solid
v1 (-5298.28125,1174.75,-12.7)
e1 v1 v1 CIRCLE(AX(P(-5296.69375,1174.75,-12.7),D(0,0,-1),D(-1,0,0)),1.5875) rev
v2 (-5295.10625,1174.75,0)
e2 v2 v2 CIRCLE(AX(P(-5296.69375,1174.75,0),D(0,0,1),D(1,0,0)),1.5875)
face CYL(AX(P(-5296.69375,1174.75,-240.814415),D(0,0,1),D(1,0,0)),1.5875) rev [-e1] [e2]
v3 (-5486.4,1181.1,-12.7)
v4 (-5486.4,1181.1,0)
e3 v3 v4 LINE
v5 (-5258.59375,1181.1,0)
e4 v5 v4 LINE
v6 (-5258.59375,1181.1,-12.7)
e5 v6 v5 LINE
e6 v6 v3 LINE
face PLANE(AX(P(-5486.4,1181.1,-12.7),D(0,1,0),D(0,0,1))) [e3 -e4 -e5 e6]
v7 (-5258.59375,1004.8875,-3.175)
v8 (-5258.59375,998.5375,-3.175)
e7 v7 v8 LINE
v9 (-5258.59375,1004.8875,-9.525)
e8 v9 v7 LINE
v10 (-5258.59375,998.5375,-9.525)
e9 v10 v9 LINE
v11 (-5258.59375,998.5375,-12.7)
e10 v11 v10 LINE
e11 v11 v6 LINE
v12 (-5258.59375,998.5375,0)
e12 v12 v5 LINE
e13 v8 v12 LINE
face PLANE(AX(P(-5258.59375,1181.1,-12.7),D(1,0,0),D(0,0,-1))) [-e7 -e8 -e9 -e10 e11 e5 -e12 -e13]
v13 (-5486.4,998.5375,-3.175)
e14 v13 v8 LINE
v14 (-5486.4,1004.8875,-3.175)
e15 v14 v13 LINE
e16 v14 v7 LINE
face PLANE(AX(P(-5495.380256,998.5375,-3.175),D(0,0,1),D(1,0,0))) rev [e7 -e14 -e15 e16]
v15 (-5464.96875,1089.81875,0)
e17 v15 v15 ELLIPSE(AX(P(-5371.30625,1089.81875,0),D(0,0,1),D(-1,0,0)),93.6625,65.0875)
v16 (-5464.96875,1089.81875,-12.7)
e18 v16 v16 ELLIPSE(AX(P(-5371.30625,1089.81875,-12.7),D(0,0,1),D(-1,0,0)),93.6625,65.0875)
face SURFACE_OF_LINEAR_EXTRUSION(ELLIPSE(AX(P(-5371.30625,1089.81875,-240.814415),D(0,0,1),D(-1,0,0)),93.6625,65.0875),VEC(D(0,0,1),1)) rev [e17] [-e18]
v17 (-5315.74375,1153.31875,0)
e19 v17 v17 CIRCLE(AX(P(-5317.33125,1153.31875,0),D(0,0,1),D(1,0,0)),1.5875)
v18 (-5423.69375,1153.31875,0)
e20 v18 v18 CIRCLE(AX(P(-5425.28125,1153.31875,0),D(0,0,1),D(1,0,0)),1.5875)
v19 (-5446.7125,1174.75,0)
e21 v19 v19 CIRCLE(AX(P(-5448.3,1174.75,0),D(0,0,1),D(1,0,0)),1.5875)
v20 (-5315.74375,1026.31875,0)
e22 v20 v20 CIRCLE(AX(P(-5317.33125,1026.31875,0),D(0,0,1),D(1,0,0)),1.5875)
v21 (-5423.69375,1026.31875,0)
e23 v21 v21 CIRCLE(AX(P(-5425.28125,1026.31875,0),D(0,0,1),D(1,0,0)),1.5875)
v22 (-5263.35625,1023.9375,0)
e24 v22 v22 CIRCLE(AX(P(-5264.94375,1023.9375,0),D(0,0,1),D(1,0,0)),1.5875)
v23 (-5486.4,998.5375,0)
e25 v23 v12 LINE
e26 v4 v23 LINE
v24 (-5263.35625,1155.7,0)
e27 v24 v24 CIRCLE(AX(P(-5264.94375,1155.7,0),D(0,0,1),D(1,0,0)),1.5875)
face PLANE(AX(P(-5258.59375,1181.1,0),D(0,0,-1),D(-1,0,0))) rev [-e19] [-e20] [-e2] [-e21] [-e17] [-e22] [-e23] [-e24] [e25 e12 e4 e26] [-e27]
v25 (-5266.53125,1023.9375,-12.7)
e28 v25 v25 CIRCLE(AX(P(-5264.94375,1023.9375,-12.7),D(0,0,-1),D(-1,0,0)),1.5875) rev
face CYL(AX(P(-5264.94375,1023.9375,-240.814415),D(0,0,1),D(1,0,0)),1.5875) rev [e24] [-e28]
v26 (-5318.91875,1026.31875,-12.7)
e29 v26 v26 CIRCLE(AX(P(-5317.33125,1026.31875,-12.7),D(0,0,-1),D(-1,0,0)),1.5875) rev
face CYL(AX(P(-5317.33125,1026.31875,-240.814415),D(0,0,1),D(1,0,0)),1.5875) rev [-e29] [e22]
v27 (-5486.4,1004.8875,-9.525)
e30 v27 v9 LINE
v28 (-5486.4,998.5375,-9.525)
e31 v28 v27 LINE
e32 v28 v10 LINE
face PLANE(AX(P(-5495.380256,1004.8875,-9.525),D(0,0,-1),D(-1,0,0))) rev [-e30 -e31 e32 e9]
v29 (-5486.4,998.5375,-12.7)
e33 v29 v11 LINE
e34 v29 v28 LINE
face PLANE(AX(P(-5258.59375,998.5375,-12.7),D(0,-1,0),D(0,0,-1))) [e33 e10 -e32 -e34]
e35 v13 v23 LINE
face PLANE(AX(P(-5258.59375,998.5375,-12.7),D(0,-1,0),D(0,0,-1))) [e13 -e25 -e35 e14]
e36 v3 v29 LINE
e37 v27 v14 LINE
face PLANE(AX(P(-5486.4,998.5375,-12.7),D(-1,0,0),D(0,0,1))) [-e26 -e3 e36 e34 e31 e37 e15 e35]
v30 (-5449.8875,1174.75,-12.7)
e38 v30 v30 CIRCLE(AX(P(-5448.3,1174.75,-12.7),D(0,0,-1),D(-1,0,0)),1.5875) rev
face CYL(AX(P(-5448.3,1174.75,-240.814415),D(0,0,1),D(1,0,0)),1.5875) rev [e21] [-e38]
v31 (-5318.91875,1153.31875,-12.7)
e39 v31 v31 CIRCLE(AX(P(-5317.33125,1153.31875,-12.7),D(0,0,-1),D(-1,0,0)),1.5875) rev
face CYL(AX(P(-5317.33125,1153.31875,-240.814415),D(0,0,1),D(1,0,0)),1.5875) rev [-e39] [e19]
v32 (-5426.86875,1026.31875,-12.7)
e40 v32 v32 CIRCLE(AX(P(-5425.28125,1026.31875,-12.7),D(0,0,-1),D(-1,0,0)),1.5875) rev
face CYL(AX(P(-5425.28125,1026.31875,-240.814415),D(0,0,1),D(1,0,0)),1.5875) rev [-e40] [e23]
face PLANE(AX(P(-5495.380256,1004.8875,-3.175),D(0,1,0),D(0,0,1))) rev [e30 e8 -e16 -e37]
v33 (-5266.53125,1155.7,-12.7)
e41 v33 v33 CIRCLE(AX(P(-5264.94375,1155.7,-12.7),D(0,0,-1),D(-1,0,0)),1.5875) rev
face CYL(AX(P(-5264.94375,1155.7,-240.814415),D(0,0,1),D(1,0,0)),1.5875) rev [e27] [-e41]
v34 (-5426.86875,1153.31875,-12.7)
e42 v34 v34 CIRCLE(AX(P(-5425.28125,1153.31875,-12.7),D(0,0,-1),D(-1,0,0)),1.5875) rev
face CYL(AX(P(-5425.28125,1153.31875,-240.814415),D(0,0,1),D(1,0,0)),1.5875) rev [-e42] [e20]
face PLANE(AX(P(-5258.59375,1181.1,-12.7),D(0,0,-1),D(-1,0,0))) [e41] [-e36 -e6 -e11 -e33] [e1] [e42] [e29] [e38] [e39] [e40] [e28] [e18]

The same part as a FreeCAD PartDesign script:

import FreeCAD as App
import Part
import Sketcher

V = App.Vector
Q = App.Units.Quantity

doc = App.newDocument("Part")
body = doc.addObject("PartDesign::Body", "Body")

sketch1 = body.newObject("Sketcher::SketchObject", "Sketch")
sketch1.AttachmentSupport = (doc.getObject("XY_Plane"), [""])
sketch1.MapMode = "FlatFace"
sketch1.addGeometry([
    Part.LineSegment(V(-5486.4, 1181.1, 0), V(-5486.4, 998.5375, 0)),
    Part.LineSegment(V(-5486.4, 998.5375, 0), V(-5258.59375, 998.5375, 0)),
    Part.LineSegment(V(-5258.59375, 998.5375, 0), V(-5258.59375, 1181.1, 0)),
    Part.LineSegment(V(-5258.59375, 1181.1, 0), V(-5486.4, 1181.1, 0)),
], False)
sketch1.addConstraint([
    Sketcher.Constraint("Coincident", 0, 2, 1, 1),
    Sketcher.Constraint("Coincident", 1, 2, 2, 1),
    Sketcher.Constraint("Coincident", 2, 2, 3, 1),
    Sketcher.Constraint("Coincident", 3, 2, 0, 1),
    Sketcher.Constraint("Vertical", 0),
    Sketcher.Constraint("Horizontal", 1),
    Sketcher.Constraint("Vertical", 2),
    Sketcher.Constraint("Horizontal", 3),
    Sketcher.Constraint("DistanceX", 0, 2, -1, 1, Q("216 in")),
    Sketcher.Constraint("DistanceY", -1, 1, 2, 2, Q("46.5 in")),
    Sketcher.Constraint("DistanceX", 1, 1, 1, 2, Q("8.96875 in")),
    Sketcher.Constraint("DistanceY", 0, 2, 0, 1, Q("7.1875 in")),
])
pad1 = body.newObject("PartDesign::Pad", "Pad")
pad1.Profile = sketch1
pad1.Length = Q("0.5 in")
pad1.Reversed = True

sketch2 = body.newObject("Sketcher::SketchObject", "Sketch001")
sketch2.AttachmentSupport = (doc.getObject("XY_Plane"), [""])
sketch2.MapMode = "FlatFace"
sketch2.addGeometry([
    Part.Circle(V(-5448.3, 1174.75, 0), V(0, 0, 1), 1.5875),
    Part.Circle(V(-5425.28125, 1153.31875, 0), V(0, 0, 1), 1.5875),
    Part.Circle(V(-5296.69375, 1174.75, 0), V(0, 0, 1), 1.5875),
    Part.Circle(V(-5317.33125, 1153.31875, 0), V(0, 0, 1), 1.5875),
    Part.Circle(V(-5264.94375, 1155.7, 0), V(0, 0, 1), 1.5875),
    Part.Circle(V(-5264.94375, 1023.9375, 0), V(0, 0, 1), 1.5875),
    Part.Circle(V(-5317.33125, 1026.31875, 0), V(0, 0, 1), 1.5875),
    Part.Circle(V(-5425.28125, 1026.31875, 0), V(0, 0, 1), 1.5875),
    Part.Ellipse(V(-5464.96875, 1089.81875, 0), V(-5371.30625, 1024.73125, 0), V(-5371.30625, 1089.81875, 0)),
], False)
sketch2.addConstraint([
    Sketcher.Constraint("Block", 8),
    Sketcher.Constraint("Equal", 0, 1),
    Sketcher.Constraint("Equal", 1, 2),
    Sketcher.Constraint("Equal", 2, 3),
    Sketcher.Constraint("Equal", 3, 4),
    Sketcher.Constraint("Equal", 4, 5),
    Sketcher.Constraint("Equal", 5, 6),
    Sketcher.Constraint("Equal", 6, 7),
    Sketcher.Constraint("Horizontal", 0, 3, 2, 3),
    Sketcher.Constraint("Horizontal", 1, 3, 3, 3),
    Sketcher.Constraint("Horizontal", 6, 3, 7, 3),
    Sketcher.Constraint("Vertical", 4, 3, 5, 3),
    Sketcher.Constraint("Vertical", 3, 3, 6, 3),
    Sketcher.Constraint("Vertical", 1, 3, 7, 3),
    Sketcher.Constraint("Diameter", 0, Q("0.125 in")),
    Sketcher.Constraint("DistanceY", 6, 3, 3, 3, Q("5 in")),
    Sketcher.Constraint("DistanceX", 0, 3, -1, 1, Q("214.5 in")),
    Sketcher.Constraint("DistanceY", -1, 1, 4, 3, Q("45.5 in")),
    Sketcher.Constraint("DistanceY", -1, 1, 0, 3, Q("46.25 in")),
    Sketcher.Constraint("DistanceX", 1, 3, 3, 3, Q("4.25 in")),
    Sketcher.Constraint("DistanceX", 2, 3, 4, 3, Q("1.25 in")),
    Sketcher.Constraint("DistanceX", 1, 3, -1, 1, Q("213.59375 in")),
    Sketcher.Constraint("DistanceY", -1, 1, 1, 3, Q("45.40625 in")),
    Sketcher.Constraint("DistanceX", 2, 3, -1, 1, Q("208.53125 in")),
    Sketcher.Constraint("DistanceY", -1, 1, 5, 3, Q("40.3125 in")),
])
pocket1 = body.newObject("PartDesign::Pocket", "Pocket")
pocket1.Profile = sketch2
pocket1.Length = Q("0.5 in")

sketch3 = body.newObject("Sketcher::SketchObject", "Sketch002")
sketch3.AttachmentSupport = (doc.getObject("YZ_Plane"), [""])
sketch3.MapMode = "FlatFace"
sketch3.AttachmentOffset = App.Placement(V(0, 0, -207.03125 * 25.4), App.Rotation())
sketch3.addGeometry([
    Part.LineSegment(V(998.5375, -3.175, 0), V(998.5375, -9.525, 0)),
    Part.LineSegment(V(998.5375, -9.525, 0), V(1004.8875, -9.525, 0)),
    Part.LineSegment(V(1004.8875, -9.525, 0), V(1004.8875, -3.175, 0)),
    Part.LineSegment(V(1004.8875, -3.175, 0), V(998.5375, -3.175, 0)),
], False)
sketch3.addConstraint([
    Sketcher.Constraint("Coincident", 0, 2, 1, 1),
    Sketcher.Constraint("Coincident", 1, 2, 2, 1),
    Sketcher.Constraint("Coincident", 2, 2, 3, 1),
    Sketcher.Constraint("Coincident", 3, 2, 0, 1),
    Sketcher.Constraint("Vertical", 0),
    Sketcher.Constraint("Horizontal", 1),
    Sketcher.Constraint("Vertical", 2),
    Sketcher.Constraint("Horizontal", 3),
    Sketcher.Constraint("Equal", 3, 0),
    Sketcher.Constraint("DistanceX", 1, 1, 1, 2, Q("0.25 in")),
    Sketcher.Constraint("DistanceX", -1, 1, 0, 2, Q("39.3125 in")),
    Sketcher.Constraint("DistanceY", 0, 2, -1, 1, Q("0.375 in")),
])
pocket2 = body.newObject("PartDesign::Pocket", "Pocket001")
pocket2.Profile = sketch3
pocket2.Length = Q("8.96875 in")

doc.recompute()
